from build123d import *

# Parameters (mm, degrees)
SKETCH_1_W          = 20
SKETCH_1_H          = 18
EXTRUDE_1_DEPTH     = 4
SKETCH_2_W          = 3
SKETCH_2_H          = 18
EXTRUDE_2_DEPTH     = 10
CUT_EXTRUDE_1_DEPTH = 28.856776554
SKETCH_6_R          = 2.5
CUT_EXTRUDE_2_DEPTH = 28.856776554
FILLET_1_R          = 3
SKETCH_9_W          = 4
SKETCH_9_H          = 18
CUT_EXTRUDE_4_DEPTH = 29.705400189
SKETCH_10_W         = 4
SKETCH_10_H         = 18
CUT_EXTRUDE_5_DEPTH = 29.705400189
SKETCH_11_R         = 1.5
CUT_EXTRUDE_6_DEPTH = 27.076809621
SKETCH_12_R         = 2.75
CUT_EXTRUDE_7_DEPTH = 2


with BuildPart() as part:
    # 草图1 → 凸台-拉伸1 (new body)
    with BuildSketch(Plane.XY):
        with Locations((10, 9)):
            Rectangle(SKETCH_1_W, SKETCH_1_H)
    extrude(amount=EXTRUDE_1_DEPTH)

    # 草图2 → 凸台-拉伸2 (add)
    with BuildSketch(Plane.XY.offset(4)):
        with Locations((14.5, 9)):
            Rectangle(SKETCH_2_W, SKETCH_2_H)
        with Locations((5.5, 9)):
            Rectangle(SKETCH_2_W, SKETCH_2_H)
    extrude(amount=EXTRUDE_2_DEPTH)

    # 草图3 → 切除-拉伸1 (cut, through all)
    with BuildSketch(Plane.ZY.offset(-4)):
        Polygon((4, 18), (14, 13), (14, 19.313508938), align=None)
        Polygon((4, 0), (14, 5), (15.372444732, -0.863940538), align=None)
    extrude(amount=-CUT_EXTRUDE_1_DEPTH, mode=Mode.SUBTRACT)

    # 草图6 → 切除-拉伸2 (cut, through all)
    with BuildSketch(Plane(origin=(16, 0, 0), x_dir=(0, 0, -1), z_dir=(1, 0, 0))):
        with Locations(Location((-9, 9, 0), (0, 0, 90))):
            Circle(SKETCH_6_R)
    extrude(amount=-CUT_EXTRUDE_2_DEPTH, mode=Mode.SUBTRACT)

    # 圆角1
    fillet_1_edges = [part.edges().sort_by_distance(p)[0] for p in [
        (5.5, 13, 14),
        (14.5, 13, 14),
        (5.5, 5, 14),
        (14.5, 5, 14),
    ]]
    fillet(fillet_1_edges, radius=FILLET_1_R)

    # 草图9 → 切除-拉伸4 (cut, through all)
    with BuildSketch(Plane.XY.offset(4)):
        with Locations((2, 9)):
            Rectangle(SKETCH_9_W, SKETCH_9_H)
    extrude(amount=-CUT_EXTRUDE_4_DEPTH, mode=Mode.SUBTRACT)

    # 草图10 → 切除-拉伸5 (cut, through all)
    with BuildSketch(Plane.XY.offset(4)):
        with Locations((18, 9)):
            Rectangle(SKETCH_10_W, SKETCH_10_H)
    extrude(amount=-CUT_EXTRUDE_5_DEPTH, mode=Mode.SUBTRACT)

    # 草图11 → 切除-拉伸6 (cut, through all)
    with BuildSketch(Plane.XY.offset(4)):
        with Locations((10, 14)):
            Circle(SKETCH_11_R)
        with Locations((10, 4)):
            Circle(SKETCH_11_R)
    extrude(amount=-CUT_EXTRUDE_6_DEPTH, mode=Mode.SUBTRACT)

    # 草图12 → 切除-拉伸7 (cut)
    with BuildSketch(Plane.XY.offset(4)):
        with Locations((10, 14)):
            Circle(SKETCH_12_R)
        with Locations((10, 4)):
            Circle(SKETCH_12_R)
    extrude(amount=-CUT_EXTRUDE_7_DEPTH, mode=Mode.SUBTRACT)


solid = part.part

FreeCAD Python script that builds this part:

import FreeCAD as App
import Part
import Sketcher

V = App.Vector
Q = App.Units.Quantity


def edges_at(feature, points):
    """Names of the edges that pass closest to the given points."""
    edges = feature.Shape.Edges
    near = lambda p: min(range(len(edges)), key=lambda i: edges[i].distToShape(Part.Vertex(*p))[0])
    return sorted({f"Edge{near(p) + 1}" for p in points})


def add_polygon(sketch, points):
    """Adds a closed chain of lines whose ends are joined by coincident constraints."""
    first, n = sketch.GeometryCount, len(points)
    for a, b in zip(points, points[1:] + points[:1]):
        sketch.addGeometry(Part.LineSegment(App.Vector(*a, 0), App.Vector(*b, 0)), False)
    for i in range(n):
        sketch.addConstraint(Sketcher.Constraint("Coincident", first + i, 2, first + (i + 1) % n, 1))

doc = App.newDocument("Part")
params = doc.addObject("Spreadsheet::Sheet", "Params")
for row, (alias, value) in enumerate([
    ("sketch1_width", "20 mm"),
    ("sketch1_height", "18 mm"),
    ("pad1_length", "4 mm"),
    ("sketch2_width", "3 mm"),
    ("sketch2_height", "18 mm"),
    ("pad2_length", "10 mm"),
    ("sketch4_diameter", "5 mm"),
    ("fillet_radius", "3 mm"),
    ("sketch5_width", "4 mm"),
    ("sketch5_height", "18 mm"),
    ("sketch6_width", "4 mm"),
    ("sketch6_height", "18 mm"),
    ("sketch7_diameter", "3 mm"),
    ("sketch8_diameter", "5.5 mm"),
    ("pocket6_length", "2 mm"),
], start=1):
    params.set(f"A{row}", alias)
    params.set(f"B{row}", "=" + value)
    params.setAlias(f"B{row}", alias)

body = doc.addObject("PartDesign::Body", "Body")

# Sketch on XY plane
sketch1 = body.newObject("Sketcher::SketchObject", "Sketch")
sketch1.AttachmentSupport = (doc.getObject("XY_Plane"), [""])
sketch1.MapMode = "FlatFace"
add_polygon(sketch1, [(0, 18), (0, 0), (20, 0), (20, 18)])  # lines 0-3
sketch1.addConstraint([
    Sketcher.Constraint("Vertical", 0),
    Sketcher.Constraint("Horizontal", 1),
    Sketcher.Constraint("Vertical", 2),
    Sketcher.Constraint("Horizontal", 3),
    Sketcher.Constraint("Coincident", 0, 2, -1, 1),
    Sketcher.Constraint("DistanceX", 1, 1, 1, 2, Q("20 mm")),
    Sketcher.Constraint("DistanceY", 0, 2, 0, 1, Q("18 mm")),
])
sketch1.setExpression("Constraints[9]", "Params.sketch1_width")
sketch1.setExpression("Constraints[10]", "Params.sketch1_height")
pad1 = body.newObject("PartDesign::Pad", "Pad")
pad1.Profile = sketch1
pad1.setExpression("Length", "Params.pad1_length")

# Sketch on XY plane
sketch2 = body.newObject("Sketcher::SketchObject", "Sketch001")
sketch2.AttachmentSupport = (doc.getObject("XY_Plane"), [""])
sketch2.MapMode = "FlatFace"
sketch2.AttachmentOffset = App.Placement(V(0, 0, 4), App.Rotation())
add_polygon(sketch2, [(13, 18), (13, 0), (16, 0), (16, 18)])  # lines 0-3
add_polygon(sketch2, [(4, 18), (4, 0), (7, 0), (7, 18)])  # lines 4-7
sketch2.addConstraint([
    Sketcher.Constraint("Vertical", 0),
    Sketcher.Constraint("Horizontal", 1),
    Sketcher.Constraint("Vertical", 2),
    Sketcher.Constraint("Horizontal", 3),
    Sketcher.Constraint("Vertical", 4),
    Sketcher.Constraint("Horizontal", 5),
    Sketcher.Constraint("Vertical", 6),
    Sketcher.Constraint("Horizontal", 7),
    Sketcher.Constraint("PointOnObject", 0, 2, -1),
    Sketcher.Constraint("PointOnObject", 4, 2, -1),
    Sketcher.Constraint("Horizontal", 3, 2, 6, 2),
    Sketcher.Constraint("Equal", 3, 5),
    Sketcher.Constraint("DistanceX", 1, 1, 1, 2, Q("3 mm")),
    Sketcher.Constraint("DistanceY", 0, 2, 0, 1, Q("18 mm")),
    Sketcher.Constraint("DistanceX", -1, 1, 0, 2, Q("13 mm")),
    Sketcher.Constraint("DistanceX", -1, 1, 4, 2, Q("4 mm")),
])
sketch2.setExpression("Constraints[20]", "Params.sketch2_width")
sketch2.setExpression("Constraints[21]", "Params.sketch2_height")
pad2 = body.newObject("PartDesign::Pad", "Pad001")
pad2.Profile = sketch2
pad2.setExpression("Length", "Params.pad2_length")

# Sketch on YZ plane
sketch3 = body.newObject("Sketcher::SketchObject", "Sketch002")
sketch3.AttachmentSupport = (doc.getObject("YZ_Plane"), [""])
sketch3.MapMode = "FlatFace"
sketch3.AttachmentOffset = App.Placement(V(0, 0, 4), App.Rotation())
add_polygon(sketch3, [(18, 4), (13, 14), (19, 14)])  # lines 0-2
add_polygon(sketch3, [(5, 14), (0, 4), (-1, 15)])  # lines 3-5
sketch3.addConstraint([
    Sketcher.Constraint("Horizontal", 1),
    Sketcher.Constraint("PointOnObject", 3, 2, -2),
    Sketcher.Constraint("Horizontal", 2, 2, 3, 2),
    Sketcher.Constraint("Horizontal", 1, 2, 5, 2),
    Sketcher.Constraint("Equal", 0, 3),
    Sketcher.Constraint("DistanceX", -1, 1, 0, 2, Q("13 mm")),
    Sketcher.Constraint("DistanceY", -1, 1, 0, 2, Q("14 mm")),
    Sketcher.Constraint("DistanceX", -1, 1, 2, 2, Q("18 mm")),
    Sketcher.Constraint("DistanceY", -1, 1, 2, 2, Q("4 mm")),
    Sketcher.Constraint("DistanceX", 1, 1, 1, 2, Q("6.313509 mm")),
    Sketcher.Constraint("Distance", 5, Q("6.022408 mm")),
    Sketcher.Constraint("DistanceX", 4, 2, -1, 1, Q("0.863941 mm")),
])
pocket1 = body.newObject("PartDesign::Pocket", "Pocket")
pocket1.Profile = sketch3
pocket1.Type = "ThroughAll"
pocket1.Reversed = True

# Sketch on YZ plane
sketch4 = body.newObject("Sketcher::SketchObject", "Sketch003")
sketch4.AttachmentSupport = (doc.getObject("YZ_Plane"), [""])
sketch4.MapMode = "FlatFace"
sketch4.AttachmentOffset = App.Placement(V(0, 0, 16), App.Rotation())
sketch4.addGeometry(Part.Circle(V(9, 9, 0), V(0, 0, 1), 2.5), False)
sketch4.addConstraint([
    Sketcher.Constraint("Diameter", 0, Q("5 mm")),
    Sketcher.Constraint("DistanceX", -1, 1, 0, 3, Q("9 mm")),
    Sketcher.Constraint("DistanceY", -1, 1, 0, 3, Q("9 mm")),
])
sketch4.setExpression("Constraints[0]", "Params.sketch4_diameter")
pocket2 = body.newObject("PartDesign::Pocket", "Pocket001")
pocket2.Profile = sketch4
pocket2.Type = "ThroughAll"
doc.recompute()

fillet = body.newObject("PartDesign::Fillet", "Fillet")
fillet.Base = (pocket2, edges_at(pocket2, [
    (5.5, 13, 14),
    (14.5, 13, 14),
    (5.5, 5, 14),
    (14.5, 5, 14),
]))
fillet.setExpression("Radius", "Params.fillet_radius")

# Sketch on XY plane
sketch5 = body.newObject("Sketcher::SketchObject", "Sketch004")
sketch5.AttachmentSupport = (doc.getObject("XY_Plane"), [""])
sketch5.MapMode = "FlatFace"
sketch5.AttachmentOffset = App.Placement(V(0, 0, 4), App.Rotation())
add_polygon(sketch5, [(0, 18), (0, 0), (4, 0), (4, 18)])  # lines 0-3
sketch5.addConstraint([
    Sketcher.Constraint("Vertical", 0),
    Sketcher.Constraint("Horizontal", 1),
    Sketcher.Constraint("Vertical", 2),
    Sketcher.Constraint("Horizontal", 3),
    Sketcher.Constraint("Coincident", 0, 2, -1, 1),
    Sketcher.Constraint("DistanceX", 1, 1, 1, 2, Q("4 mm")),
    Sketcher.Constraint("DistanceY", 0, 2, 0, 1, Q("18 mm")),
])
sketch5.setExpression("Constraints[9]", "Params.sketch5_width")
sketch5.setExpression("Constraints[10]", "Params.sketch5_height")
pocket3 = body.newObject("PartDesign::Pocket", "Pocket002")
pocket3.Profile = sketch5
pocket3.Type = "ThroughAll"

# Sketch on XY plane
sketch6 = body.newObject("Sketcher::SketchObject", "Sketch005")
sketch6.AttachmentSupport = (doc.getObject("XY_Plane"), [""])
sketch6.MapMode = "FlatFace"
sketch6.AttachmentOffset = App.Placement(V(0, 0, 4), App.Rotation())
add_polygon(sketch6, [(16, 18), (16, 0), (20, 0), (20, 18)])  # lines 0-3
sketch6.addConstraint([
    Sketcher.Constraint("Vertical", 0),
    Sketcher.Constraint("Horizontal", 1),
    Sketcher.Constraint("Vertical", 2),
    Sketcher.Constraint("Horizontal", 3),
    Sketcher.Constraint("PointOnObject", 0, 2, -1),
    Sketcher.Constraint("DistanceX", 1, 1, 1, 2, Q("4 mm")),
    Sketcher.Constraint("DistanceY", 0, 2, 0, 1, Q("18 mm")),
    Sketcher.Constraint("DistanceX", -1, 1, 0, 2, Q("16 mm")),
])
sketch6.setExpression("Constraints[9]", "Params.sketch6_width")
sketch6.setExpression("Constraints[10]", "Params.sketch6_height")
pocket4 = body.newObject("PartDesign::Pocket", "Pocket003")
pocket4.Profile = sketch6
pocket4.Type = "ThroughAll"

# Sketch on XY plane
sketch7 = body.newObject("Sketcher::SketchObject", "Sketch006")
sketch7.AttachmentSupport = (doc.getObject("XY_Plane"), [""])
sketch7.MapMode = "FlatFace"
sketch7.AttachmentOffset = App.Placement(V(0, 0, 4), App.Rotation())
sketch7.addGeometry([
    Part.Circle(V(10, 14, 0), V(0, 0, 1), 1.5),
    Part.Circle(V(10, 4, 0), V(0, 0, 1), 1.5),
], False)
sketch7.addConstraint([
    Sketcher.Constraint("Equal", 0, 1),
    Sketcher.Constraint("Vertical", 0, 3, 1, 3),
    Sketcher.Constraint("Diameter", 0, Q("3 mm")),
    Sketcher.Constraint("DistanceX", -1, 1, 0, 3, Q("10 mm")),
    Sketcher.Constraint("DistanceY", -1, 1, 0, 3, Q("14 mm")),
    Sketcher.Constraint("DistanceY", -1, 1, 1, 3, Q("4 mm")),
])
sketch7.setExpression("Constraints[2]", "Params.sketch7_diameter")
pocket5 = body.newObject("PartDesign::Pocket", "Pocket004")
pocket5.Profile = sketch7
pocket5.Type = "ThroughAll"

# Sketch on XY plane
sketch8 = body.newObject("Sketcher::SketchObject", "Sketch007")
sketch8.AttachmentSupport = (doc.getObject("XY_Plane"), [""])
sketch8.MapMode = "FlatFace"
sketch8.AttachmentOffset = App.Placement(V(0, 0, 4), App.Rotation())
sketch8.addGeometry([
    Part.Circle(V(10, 14, 0), V(0, 0, 1), 2.8),
    Part.Circle(V(10, 4, 0), V(0, 0, 1), 2.8),
], False)
sketch8.addConstraint([
    Sketcher.Constraint("Equal", 0, 1),
    Sketcher.Constraint("Vertical", 0, 3, 1, 3),
    Sketcher.Constraint("Diameter", 0, Q("5.5 mm")),
    Sketcher.Constraint("DistanceX", -1, 1, 0, 3, Q("10 mm")),
    Sketcher.Constraint("DistanceY", -1, 1, 0, 3, Q("14 mm")),
    Sketcher.Constraint("DistanceY", -1, 1, 1, 3, Q("4 mm")),
])
sketch8.setExpression("Constraints[2]", "Params.sketch8_diameter")
pocket6 = body.newObject("PartDesign::Pocket", "Pocket005")
pocket6.Profile = sketch8
pocket6.setExpression("Length", "Params.pocket6_length")

doc.recompute()
